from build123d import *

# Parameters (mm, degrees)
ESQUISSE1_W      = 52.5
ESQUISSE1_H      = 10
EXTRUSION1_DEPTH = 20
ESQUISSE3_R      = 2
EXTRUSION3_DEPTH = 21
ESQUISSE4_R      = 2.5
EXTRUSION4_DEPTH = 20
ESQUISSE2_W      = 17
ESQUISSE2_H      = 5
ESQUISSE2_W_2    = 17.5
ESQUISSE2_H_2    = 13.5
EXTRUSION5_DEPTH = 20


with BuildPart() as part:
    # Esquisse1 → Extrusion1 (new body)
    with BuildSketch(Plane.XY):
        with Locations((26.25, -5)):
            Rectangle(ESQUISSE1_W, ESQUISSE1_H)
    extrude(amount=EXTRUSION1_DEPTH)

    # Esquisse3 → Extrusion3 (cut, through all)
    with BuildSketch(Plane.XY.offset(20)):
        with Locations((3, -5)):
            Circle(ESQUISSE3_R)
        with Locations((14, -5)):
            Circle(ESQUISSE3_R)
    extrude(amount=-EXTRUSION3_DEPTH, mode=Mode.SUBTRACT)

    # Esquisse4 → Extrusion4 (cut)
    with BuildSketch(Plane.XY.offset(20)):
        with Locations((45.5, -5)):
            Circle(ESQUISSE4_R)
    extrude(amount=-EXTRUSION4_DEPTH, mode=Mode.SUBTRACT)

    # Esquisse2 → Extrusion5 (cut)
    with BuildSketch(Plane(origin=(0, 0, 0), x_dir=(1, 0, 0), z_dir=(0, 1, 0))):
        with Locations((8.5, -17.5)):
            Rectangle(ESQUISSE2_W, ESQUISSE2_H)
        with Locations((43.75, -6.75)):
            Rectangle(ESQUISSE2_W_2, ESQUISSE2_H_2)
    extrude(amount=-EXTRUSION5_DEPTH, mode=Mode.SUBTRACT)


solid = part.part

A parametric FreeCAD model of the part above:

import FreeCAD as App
import Part
import Sketcher


def add_polygon(sketch, points):
    """Adds a closed chain of lines whose ends are joined by coincident constraints."""
    first, n = sketch.GeometryCount, len(points)
    for a, b in zip(points, points[1:] + points[:1]):
        sketch.addGeometry(Part.LineSegment(App.Vector(*a, 0), App.Vector(*b, 0)), False)
    for i in range(n):
        sketch.addConstraint(Sketcher.Constraint("Coincident", first + i, 2, first + (i + 1) % n, 1))

doc = App.newDocument("Part")
params = doc.addObject("Spreadsheet::Sheet", "Params")
for row, (alias, value) in enumerate([
    ("sketch1_height", "10 mm"),
    ("sketch1_width", "52.5 mm"),
    ("pad1_length", "20 mm"),
    ("sketch2_diameter", "4 mm"),
    ("sketch3_diameter", "5 mm"),
    ("pocket2_length", "20 mm"),
    ("sketch4_width", "17 mm"),
    ("sketch4_height", "5 mm"),
    ("sketch4_width2", "17.5 mm"),
    ("sketch4_height2", "13.5 mm"),
    ("pocket3_length", "20 mm"),
], start=1):
    params.set(f"A{row}", alias)
    params.set(f"B{row}", "=" + value)
    params.setAlias(f"B{row}", alias)

body = doc.addObject("PartDesign::Body", "Body")

# Sketch on XY plane
sketch1 = doc.addObject("Sketcher::SketchObject", "Sketch")
body.addObject(sketch1)
sketch1.AttachmentSupport = (doc.XY_Plane, [""])
sketch1.MapMode = "FlatFace"
add_polygon(sketch1, [(0, 0), (0, -10), (52, -10), (52, 0)])  # lines 0-3
sketch1.addConstraint([
    Sketcher.Constraint("Vertical", 0),
    Sketcher.Constraint("Horizontal", 1),
    Sketcher.Constraint("Vertical", 2),
    Sketcher.Constraint("Horizontal", 3),
    Sketcher.Constraint("Coincident", 3, 2, -1, 1),
    Sketcher.Constraint("DistanceY", 0, 2, 0, 1, 10.0),
    Sketcher.Constraint("DistanceX", 1, 1, 1, 2, 52.5),
])
sketch1.setExpression("Constraints[9]", "Params.sketch1_height")
sketch1.setExpression("Constraints[10]", "Params.sketch1_width")
pad1 = doc.addObject("PartDesign::Pad", "Pad")
body.addObject(pad1)
pad1.Profile = sketch1
pad1.setExpression("Length", "Params.pad1_length")

# Sketch on XY plane
sketch2 = doc.addObject("Sketcher::SketchObject", "Sketch001")
body.addObject(sketch2)
sketch2.AttachmentSupport = (doc.XY_Plane, [""])
sketch2.MapMode = "FlatFace"
sketch2.AttachmentOffset = App.Placement(App.Vector(0, 0, 20), App.Rotation())
sketch2.addGeometry([
    Part.Circle(App.Vector(3, -5, 0), App.Vector(0, 0, 1), 2),
    Part.Circle(App.Vector(14, -5, 0), App.Vector(0, 0, 1), 2),
], False)
sketch2.addConstraint([
    Sketcher.Constraint("Equal", 0, 1),
    Sketcher.Constraint("Horizontal", 0, 3, 1, 3),
    Sketcher.Constraint("Diameter", 0, 4.0),
    Sketcher.Constraint("DistanceX", -1, 1, 0, 3, 3.0),
    Sketcher.Constraint("DistanceY", 0, 3, -1, 1, 5.0),
    Sketcher.Constraint("DistanceX", -1, 1, 1, 3, 14.0),
])
sketch2.setExpression("Constraints[2]", "Params.sketch2_diameter")
pocket1 = doc.addObject("PartDesign::Pocket", "Pocket")
body.addObject(pocket1)
pocket1.Profile = sketch2
pocket1.Type = "ThroughAll"

# Sketch on XY plane
sketch3 = doc.addObject("Sketcher::SketchObject", "Sketch002")
body.addObject(sketch3)
sketch3.AttachmentSupport = (doc.XY_Plane, [""])
sketch3.MapMode = "FlatFace"
sketch3.AttachmentOffset = App.Placement(App.Vector(0, 0, 20), App.Rotation())
sketch3.addGeometry(Part.Circle(App.Vector(45.5, -5, 0), App.Vector(0, 0, 1), 2.5), False)
sketch3.addConstraint([
    Sketcher.Constraint("Diameter", 0, 5.0),
    Sketcher.Constraint("DistanceY", 0, 3, -1, 1, 5.0),
    Sketcher.Constraint("DistanceX", -1, 1, 0, 3, 45.5),
])
sketch3.setExpression("Constraints[0]", "Params.sketch3_diameter")
pocket2 = doc.addObject("PartDesign::Pocket", "Pocket001")
body.addObject(pocket2)
pocket2.Profile = sketch3
pocket2.setExpression("Length", "Params.pocket2_length")

# Sketch on XZ plane
sketch4 = doc.addObject("Sketcher::SketchObject", "Sketch003")
body.addObject(sketch4)
sketch4.AttachmentSupport = (doc.XZ_Plane, [""])
sketch4.MapMode = "FlatFace"
add_polygon(sketch4, [(0, 15), (0, 20), (17, 20), (17, 15)])  # lines 0-3
add_polygon(sketch4, [(35, 0), (35, 14), (52, 14), (52, 0)])  # lines 4-7
sketch4.addConstraint([
    Sketcher.Constraint("Vertical", 0),
    Sketcher.Constraint("Horizontal", 1),
    Sketcher.Constraint("Vertical", 2),
    Sketcher.Constraint("Horizontal", 3),
    Sketcher.Constraint("Vertical", 4),
    Sketcher.Constraint("Horizontal", 5),
    Sketcher.Constraint("Vertical", 6),
    Sketcher.Constraint("Horizontal", 7),
    Sketcher.Constraint("PointOnObject", 0, 2, -2),
    Sketcher.Constraint("PointOnObject", 6, 2, -1),
    Sketcher.Constraint("DistanceX", 1, 1, 1, 2, 17.0),
    Sketcher.Constraint("DistanceY", 0, 1, 0, 2, 5.0),
    Sketcher.Constraint("DistanceX", 5, 1, 5, 2, 17.5),
    Sketcher.Constraint("DistanceY", 4, 1, 4, 2, 13.5),
    Sketcher.Constraint("DistanceY", -1, 1, 0, 2, 20.0),
    Sketcher.Constraint("DistanceX", -1, 1, 4, 2, 35.0),
])
sketch4.setExpression("Constraints[18]", "Params.sketch4_width")
sketch4.setExpression("Constraints[19]", "Params.sketch4_height")
sketch4.setExpression("Constraints[20]", "Params.sketch4_width2")
sketch4.setExpression("Constraints[21]", "Params.sketch4_height2")
pocket3 = doc.addObject("PartDesign::Pocket", "Pocket002")
body.addObject(pocket3)
pocket3.Profile = sketch4
pocket3.setExpression("Length", "Params.pocket3_length")
pocket3.Reversed = True

doc.recompute()
